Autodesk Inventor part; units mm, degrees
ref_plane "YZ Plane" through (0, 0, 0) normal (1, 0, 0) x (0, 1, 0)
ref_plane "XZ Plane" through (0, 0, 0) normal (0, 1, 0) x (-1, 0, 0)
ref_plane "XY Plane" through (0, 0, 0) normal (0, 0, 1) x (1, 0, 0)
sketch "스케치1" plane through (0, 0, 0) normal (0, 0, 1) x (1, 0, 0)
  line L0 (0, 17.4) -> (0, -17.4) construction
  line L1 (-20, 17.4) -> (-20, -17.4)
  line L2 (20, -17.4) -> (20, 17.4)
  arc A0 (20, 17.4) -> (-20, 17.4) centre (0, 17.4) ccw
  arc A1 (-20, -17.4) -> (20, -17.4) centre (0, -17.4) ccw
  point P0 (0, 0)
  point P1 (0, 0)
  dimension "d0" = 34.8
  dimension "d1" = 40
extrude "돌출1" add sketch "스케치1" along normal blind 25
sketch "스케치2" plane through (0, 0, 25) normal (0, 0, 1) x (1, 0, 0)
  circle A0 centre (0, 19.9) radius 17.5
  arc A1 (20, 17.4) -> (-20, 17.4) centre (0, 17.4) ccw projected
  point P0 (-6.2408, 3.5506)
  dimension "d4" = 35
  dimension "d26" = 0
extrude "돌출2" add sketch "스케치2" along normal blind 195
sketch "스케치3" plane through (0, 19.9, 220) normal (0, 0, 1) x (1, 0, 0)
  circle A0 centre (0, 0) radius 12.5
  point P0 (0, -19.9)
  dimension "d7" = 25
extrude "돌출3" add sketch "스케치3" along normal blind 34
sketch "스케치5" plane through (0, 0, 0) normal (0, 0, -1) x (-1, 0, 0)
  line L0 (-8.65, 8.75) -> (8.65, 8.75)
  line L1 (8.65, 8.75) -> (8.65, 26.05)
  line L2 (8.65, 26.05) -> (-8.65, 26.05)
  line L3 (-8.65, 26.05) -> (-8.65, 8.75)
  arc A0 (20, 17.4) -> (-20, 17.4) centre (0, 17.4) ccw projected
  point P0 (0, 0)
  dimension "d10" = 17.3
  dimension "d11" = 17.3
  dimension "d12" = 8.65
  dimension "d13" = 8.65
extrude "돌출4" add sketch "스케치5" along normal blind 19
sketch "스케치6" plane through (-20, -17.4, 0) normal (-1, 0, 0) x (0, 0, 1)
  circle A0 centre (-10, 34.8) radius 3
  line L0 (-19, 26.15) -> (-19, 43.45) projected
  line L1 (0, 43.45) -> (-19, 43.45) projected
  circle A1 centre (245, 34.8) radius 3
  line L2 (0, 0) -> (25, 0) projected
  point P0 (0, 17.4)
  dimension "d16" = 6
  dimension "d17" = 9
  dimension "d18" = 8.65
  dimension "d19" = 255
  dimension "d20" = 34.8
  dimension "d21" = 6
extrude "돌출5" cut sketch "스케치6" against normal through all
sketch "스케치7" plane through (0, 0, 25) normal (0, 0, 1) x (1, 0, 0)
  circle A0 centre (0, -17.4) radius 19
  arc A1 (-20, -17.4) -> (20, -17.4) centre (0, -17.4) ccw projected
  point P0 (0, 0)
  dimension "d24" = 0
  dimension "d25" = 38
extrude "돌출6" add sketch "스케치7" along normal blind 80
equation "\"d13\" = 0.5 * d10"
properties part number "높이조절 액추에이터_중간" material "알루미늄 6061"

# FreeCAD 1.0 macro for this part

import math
import FreeCAD as App
import Part
import Sketcher

V = App.Vector
Q = App.Units.Quantity

doc = App.newDocument("Part")
params = doc.addObject("Spreadsheet::Sheet", "Params")
for row, (alias, value) in enumerate([
    ("sketch1_radius", "20 mm"),
    ("sketch1_height", "34.8 mm"),
    ("pad1_length", "25 mm"),
    ("sketch2_diameter", "35 mm"),
    ("pad2_length", "195 mm"),
    ("sketch3_diameter", "25 mm"),
    ("pad3_length", "34 mm"),
    ("sketch4_width", "17.3 mm"),
    ("pad4_length", "19 mm"),
    ("sketch5_diameter", "6 mm"),
    ("sketch6_diameter", "38 mm"),
    ("pad5_length", "80 mm"),
], start=1):
    params.set(f"A{row}", alias)
    params.set(f"B{row}", "=" + value)
    params.setAlias(f"B{row}", alias)

body = doc.addObject("PartDesign::Body", "Body")

sketch1 = body.newObject("Sketcher::SketchObject", "Sketch")
sketch1.AttachmentSupport = (doc.getObject("XY_Plane"), [""])
sketch1.MapMode = "FlatFace"
sketch1.addGeometry([
    Part.ArcOfCircle(Part.Circle(V(0, 17, 0), V(0, 0, 1), 20), math.radians(0), math.radians(180)),
    Part.LineSegment(V(-20, 17, 0), V(-20, -17, 0)),
    Part.ArcOfCircle(Part.Circle(V(0, -17, 0), V(0, 0, 1), 20), math.radians(180), math.radians(360)),
    Part.LineSegment(V(20, -17, 0), V(20, 17, 0)),
], False)
sketch1.addConstraint([
    Sketcher.Constraint("Tangent", 0, 2, 1, 1),
    Sketcher.Constraint("Tangent", 1, 2, 2, 1),
    Sketcher.Constraint("Tangent", 2, 2, 3, 1),
    Sketcher.Constraint("Tangent", 3, 2, 0, 1),
    Sketcher.Constraint("Vertical", 1),
    Sketcher.Constraint("Vertical", 3),
    Sketcher.Constraint("Symmetric", 0, 3, 2, 3, -1, 1),
    Sketcher.Constraint("Radius", 0, Q("20 mm")),
    Sketcher.Constraint("DistanceY", 1, 2, 1, 1, Q("34.8 mm")),
])
sketch1.setExpression("Constraints[7]", "Params.sketch1_radius")
sketch1.setExpression("Constraints[8]", "Params.sketch1_height")
pad1 = body.newObject("PartDesign::Pad", "Pad")
pad1.Profile = sketch1
pad1.setExpression("Length", "Params.pad1_length")

sketch2 = body.newObject("Sketcher::SketchObject", "Sketch001")
sketch2.AttachmentSupport = (doc.getObject("XY_Plane"), [""])
sketch2.MapMode = "FlatFace"
sketch2.AttachmentOffset = App.Placement(V(0, 0, 25), App.Rotation())
sketch2.addGeometry(Part.Circle(V(0, 20, 0), V(0, 0, 1), 18), False)
sketch2.addConstraint([
    Sketcher.Constraint("PointOnObject", 0, 3, -2),
    Sketcher.Constraint("Diameter", 0, Q("35 mm")),
    Sketcher.Constraint("DistanceY", -1, 1, 0, 3, Q("19.9 mm")),
])
sketch2.setExpression("Constraints[1]", "Params.sketch2_diameter")
pad2 = body.newObject("PartDesign::Pad", "Pad001")
pad2.Profile = sketch2
pad2.setExpression("Length", "Params.pad2_length")

sketch3 = body.newObject("Sketcher::SketchObject", "Sketch002")
sketch3.AttachmentSupport = (doc.getObject("XY_Plane"), [""])
sketch3.MapMode = "FlatFace"
sketch3.AttachmentOffset = App.Placement(V(0, 0, 220), App.Rotation())
sketch3.addGeometry(Part.Circle(V(0, 20, 0), V(0, 0, 1), 12), False)
sketch3.addConstraint([
    Sketcher.Constraint("PointOnObject", 0, 3, -2),
    Sketcher.Constraint("Diameter", 0, Q("25 mm")),
    Sketcher.Constraint("DistanceY", -1, 1, 0, 3, Q("19.9 mm")),
])
sketch3.setExpression("Constraints[1]", "Params.sketch3_diameter")
pad3 = body.newObject("PartDesign::Pad", "Pad002")
pad3.Profile = sketch3
pad3.setExpression("Length", "Params.pad3_length")

sketch4 = body.newObject("Sketcher::SketchObject", "Sketch003")
sketch4.AttachmentSupport = (doc.getObject("XY_Plane"), [""])
sketch4.MapMode = "FlatFace"
sketch4.addGeometry([
    Part.LineSegment(V(9, 26, 0), V(9, 9, 0)),
    Part.LineSegment(V(9, 9, 0), V(-9, 9, 0)),
    Part.LineSegment(V(-9, 9, 0), V(-9, 26, 0)),
    Part.LineSegment(V(-9, 26, 0), V(9, 26, 0)),
], False)
sketch4.addConstraint([
    Sketcher.Constraint("Coincident", 0, 2, 1, 1),
    Sketcher.Constraint("Coincident", 1, 2, 2, 1),
    Sketcher.Constraint("Coincident", 2, 2, 3, 1),
    Sketcher.Constraint("Coincident", 3, 2, 0, 1),
    Sketcher.Constraint("Vertical", 0),
    Sketcher.Constraint("Horizontal", 1),
    Sketcher.Constraint("Vertical", 2),
    Sketcher.Constraint("Horizontal", 3),
    Sketcher.Constraint("Equal", 3, 0),
    Sketcher.Constraint("DistanceX", 1, 2, 1, 1, Q("17.3 mm")),
    Sketcher.Constraint("DistanceX", -1, 1, 0, 2, Q("8.65 mm")),
    Sketcher.Constraint("DistanceY", -1, 1, 0, 2, Q("8.75 mm")),
])
sketch4.setExpression("Constraints[9]", "Params.sketch4_width")
pad4 = body.newObject("PartDesign::Pad", "Pad003")
pad4.Profile = sketch4
pad4.setExpression("Length", "Params.pad4_length")
pad4.Reversed = True

sketch5 = body.newObject("Sketcher::SketchObject", "Sketch004")
sketch5.AttachmentSupport = (doc.getObject("YZ_Plane"), [""])
sketch5.MapMode = "FlatFace"
sketch5.AttachmentOffset = App.Placement(V(0, 0, -20), App.Rotation())
sketch5.addGeometry([
    Part.Circle(V(17.4, -10, 0), V(0, 0, 1), 3),
    Part.Circle(V(17.4, 245, 0), V(0, 0, 1), 3),
], False)
sketch5.addConstraint([
    Sketcher.Constraint("Equal", 0, 1),
    Sketcher.Constraint("Vertical", 0, 3, 1, 3),
    Sketcher.Constraint("Diameter", 0, Q("6 mm")),
    Sketcher.Constraint("DistanceY", 0, 3, 1, 3, Q("255 mm")),
    Sketcher.Constraint("DistanceY", 0, 3, -1, 1, Q("10 mm")),
    Sketcher.Constraint("DistanceX", -1, 1, 0, 3, Q("17.4 mm")),
])
sketch5.setExpression("Constraints[2]", "Params.sketch5_diameter")
pocket1 = body.newObject("PartDesign::Pocket", "Pocket")
pocket1.Profile = sketch5
pocket1.Type = "ThroughAll"
pocket1.Reversed = True

sketch6 = body.newObject("Sketcher::SketchObject", "Sketch005")
sketch6.AttachmentSupport = (doc.getObject("XY_Plane"), [""])
sketch6.MapMode = "FlatFace"
sketch6.AttachmentOffset = App.Placement(V(0, 0, 25), App.Rotation())
sketch6.addGeometry(Part.Circle(V(0, -17, 0), V(0, 0, 1), 19), False)
sketch6.addConstraint([
    Sketcher.Constraint("PointOnObject", 0, 3, -2),
    Sketcher.Constraint("Diameter", 0, Q("38 mm")),
    Sketcher.Constraint("DistanceY", 0, 3, -1, 1, Q("17.4 mm")),
])
sketch6.setExpression("Constraints[1]", "Params.sketch6_diameter")
pad5 = body.newObject("PartDesign::Pad", "Pad004")
pad5.Profile = sketch6
pad5.setExpression("Length", "Params.pad5_length")

doc.recompute()
